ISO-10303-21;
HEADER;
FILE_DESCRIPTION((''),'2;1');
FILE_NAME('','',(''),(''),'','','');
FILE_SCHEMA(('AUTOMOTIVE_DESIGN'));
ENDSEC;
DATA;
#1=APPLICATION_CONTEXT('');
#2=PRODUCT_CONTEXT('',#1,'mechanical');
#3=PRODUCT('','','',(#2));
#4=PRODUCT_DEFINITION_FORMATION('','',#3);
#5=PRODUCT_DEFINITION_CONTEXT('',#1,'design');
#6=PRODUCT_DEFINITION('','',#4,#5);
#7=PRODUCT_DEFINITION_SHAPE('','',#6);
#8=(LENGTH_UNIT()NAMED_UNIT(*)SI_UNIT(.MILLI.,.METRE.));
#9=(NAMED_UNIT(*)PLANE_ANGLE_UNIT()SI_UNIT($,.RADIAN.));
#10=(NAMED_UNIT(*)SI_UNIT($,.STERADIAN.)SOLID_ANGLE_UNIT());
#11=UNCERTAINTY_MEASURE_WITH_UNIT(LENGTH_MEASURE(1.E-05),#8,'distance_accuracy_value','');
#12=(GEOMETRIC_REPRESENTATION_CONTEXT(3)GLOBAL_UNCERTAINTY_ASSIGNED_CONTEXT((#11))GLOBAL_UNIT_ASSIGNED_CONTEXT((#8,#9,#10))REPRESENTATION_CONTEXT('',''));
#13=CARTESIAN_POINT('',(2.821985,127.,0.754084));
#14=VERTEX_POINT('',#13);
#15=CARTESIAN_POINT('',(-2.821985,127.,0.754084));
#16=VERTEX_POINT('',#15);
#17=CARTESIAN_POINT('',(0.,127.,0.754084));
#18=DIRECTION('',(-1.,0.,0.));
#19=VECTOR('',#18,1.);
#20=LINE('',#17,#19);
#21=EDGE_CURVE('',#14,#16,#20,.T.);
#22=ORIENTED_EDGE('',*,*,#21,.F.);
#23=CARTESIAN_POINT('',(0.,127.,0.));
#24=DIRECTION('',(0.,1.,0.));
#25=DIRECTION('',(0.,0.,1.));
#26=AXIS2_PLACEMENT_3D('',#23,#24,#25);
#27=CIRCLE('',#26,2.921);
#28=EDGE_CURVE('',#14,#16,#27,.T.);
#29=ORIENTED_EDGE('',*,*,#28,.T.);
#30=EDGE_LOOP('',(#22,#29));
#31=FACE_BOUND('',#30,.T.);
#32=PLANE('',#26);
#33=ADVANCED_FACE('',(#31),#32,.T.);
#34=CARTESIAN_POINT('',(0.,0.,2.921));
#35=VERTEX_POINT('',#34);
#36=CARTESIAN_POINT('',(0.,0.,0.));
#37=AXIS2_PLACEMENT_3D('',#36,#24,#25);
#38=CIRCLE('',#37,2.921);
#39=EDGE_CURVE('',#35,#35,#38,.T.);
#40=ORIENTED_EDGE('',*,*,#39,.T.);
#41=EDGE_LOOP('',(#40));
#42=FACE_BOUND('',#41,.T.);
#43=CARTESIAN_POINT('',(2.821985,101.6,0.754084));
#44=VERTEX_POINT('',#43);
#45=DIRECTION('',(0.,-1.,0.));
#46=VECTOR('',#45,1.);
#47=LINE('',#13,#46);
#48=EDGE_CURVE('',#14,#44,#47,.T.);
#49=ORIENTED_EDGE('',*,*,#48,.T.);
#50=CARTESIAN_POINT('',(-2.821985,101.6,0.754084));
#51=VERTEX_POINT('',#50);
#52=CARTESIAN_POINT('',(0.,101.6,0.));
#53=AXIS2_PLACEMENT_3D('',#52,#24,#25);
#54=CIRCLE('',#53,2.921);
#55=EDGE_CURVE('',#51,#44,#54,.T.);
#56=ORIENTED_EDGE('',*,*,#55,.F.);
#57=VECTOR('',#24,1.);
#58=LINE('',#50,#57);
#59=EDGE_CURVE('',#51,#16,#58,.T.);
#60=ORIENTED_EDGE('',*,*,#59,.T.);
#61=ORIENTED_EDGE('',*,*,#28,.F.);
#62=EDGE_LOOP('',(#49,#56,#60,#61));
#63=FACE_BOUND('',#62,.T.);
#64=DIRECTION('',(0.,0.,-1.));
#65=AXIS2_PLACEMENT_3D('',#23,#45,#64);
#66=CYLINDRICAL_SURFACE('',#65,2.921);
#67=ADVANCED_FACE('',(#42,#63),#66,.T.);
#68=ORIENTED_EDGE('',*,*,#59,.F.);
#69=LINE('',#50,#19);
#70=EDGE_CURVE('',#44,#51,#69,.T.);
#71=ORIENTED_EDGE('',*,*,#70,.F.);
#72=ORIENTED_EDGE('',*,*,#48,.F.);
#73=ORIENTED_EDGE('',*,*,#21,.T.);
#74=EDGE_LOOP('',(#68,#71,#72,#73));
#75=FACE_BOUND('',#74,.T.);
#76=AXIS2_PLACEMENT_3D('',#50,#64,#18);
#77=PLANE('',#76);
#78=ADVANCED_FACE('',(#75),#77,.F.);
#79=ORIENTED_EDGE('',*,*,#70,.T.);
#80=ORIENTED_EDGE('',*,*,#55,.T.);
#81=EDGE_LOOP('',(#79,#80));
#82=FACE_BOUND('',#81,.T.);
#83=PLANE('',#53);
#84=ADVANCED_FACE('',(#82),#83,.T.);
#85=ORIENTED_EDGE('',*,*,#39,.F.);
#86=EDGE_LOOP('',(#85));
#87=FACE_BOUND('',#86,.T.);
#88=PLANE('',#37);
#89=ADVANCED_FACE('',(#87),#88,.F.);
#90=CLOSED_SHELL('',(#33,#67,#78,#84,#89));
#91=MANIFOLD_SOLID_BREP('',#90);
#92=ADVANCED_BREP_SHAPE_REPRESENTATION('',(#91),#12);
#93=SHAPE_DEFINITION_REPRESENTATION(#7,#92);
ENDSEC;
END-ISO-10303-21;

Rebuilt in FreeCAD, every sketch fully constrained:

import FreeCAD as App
import Part
import Sketcher

V = App.Vector
Q = App.Units.Quantity


def add_polygon(sketch, points):
    """Adds a closed chain of lines whose ends are joined by coincident constraints."""
    first, n = sketch.GeometryCount, len(points)
    for a, b in zip(points, points[1:] + points[:1]):
        sketch.addGeometry(Part.LineSegment(App.Vector(*a, 0), App.Vector(*b, 0)), False)
    for i in range(n):
        sketch.addConstraint(Sketcher.Constraint("Coincident", first + i, 2, first + (i + 1) % n, 1))

doc = App.newDocument("Part")
body = doc.addObject("PartDesign::Body", "Body")

sketch1 = body.newObject("Sketcher::SketchObject", "Sketch")
sketch1.AttachmentSupport = (doc.getObject("XZ_Plane"), [""])
sketch1.MapMode = "FlatFace"
sketch1.addGeometry(Part.Circle(V(0, 0, 0), V(0, 0, 1), 2.9), False)
sketch1.addConstraint(Sketcher.Constraint("Coincident", 0, 3, -1, 1))
sketch1.addConstraint(Sketcher.Constraint("Diameter", 0, Q("0.23 in")))
pad1 = body.newObject("PartDesign::Pad", "Pad")
pad1.Profile = sketch1
pad1.Length = Q("5 in")
pad1.Reversed = True

sketch2 = body.newObject("Sketcher::SketchObject", "Sketch001")
sketch2.AttachmentSupport = (doc.getObject("XZ_Plane"), [""])
sketch2.MapMode = "FlatFace"
sketch2.AttachmentOffset = App.Placement(V(0, 0, -5 * 25.4), App.Rotation())
add_polygon(sketch2, [(-2.8, 0.8), (-2.8, 3.1), (2.9, 3.1), (2.9, 0.8)])
sketch2.addConstraint(Sketcher.Constraint("Vertical", 0))
sketch2.addConstraint(Sketcher.Constraint("Horizontal", 1))
sketch2.addConstraint(Sketcher.Constraint("Vertical", 2))
sketch2.addConstraint(Sketcher.Constraint("Horizontal", 3))
sketch2.addConstraint(Sketcher.Constraint("DistanceX", 1, 1, 1, 2, Q("5.684574 mm")))
sketch2.addConstraint(Sketcher.Constraint("DistanceY", 0, 1, 0, 2, Q("2.372267 mm")))
sketch2.addConstraint(Sketcher.Constraint("DistanceY", -1, 1, 0, 2, Q("3.126351 mm")))
sketch2.addConstraint(Sketcher.Constraint("DistanceX", -1, 1, 1, 2, Q("2.862589 mm")))
pocket1 = body.newObject("PartDesign::Pocket", "Pocket")
pocket1.Profile = sketch2
pocket1.Length = Q("1 in")
pocket1.Reversed = True

doc.recompute()
